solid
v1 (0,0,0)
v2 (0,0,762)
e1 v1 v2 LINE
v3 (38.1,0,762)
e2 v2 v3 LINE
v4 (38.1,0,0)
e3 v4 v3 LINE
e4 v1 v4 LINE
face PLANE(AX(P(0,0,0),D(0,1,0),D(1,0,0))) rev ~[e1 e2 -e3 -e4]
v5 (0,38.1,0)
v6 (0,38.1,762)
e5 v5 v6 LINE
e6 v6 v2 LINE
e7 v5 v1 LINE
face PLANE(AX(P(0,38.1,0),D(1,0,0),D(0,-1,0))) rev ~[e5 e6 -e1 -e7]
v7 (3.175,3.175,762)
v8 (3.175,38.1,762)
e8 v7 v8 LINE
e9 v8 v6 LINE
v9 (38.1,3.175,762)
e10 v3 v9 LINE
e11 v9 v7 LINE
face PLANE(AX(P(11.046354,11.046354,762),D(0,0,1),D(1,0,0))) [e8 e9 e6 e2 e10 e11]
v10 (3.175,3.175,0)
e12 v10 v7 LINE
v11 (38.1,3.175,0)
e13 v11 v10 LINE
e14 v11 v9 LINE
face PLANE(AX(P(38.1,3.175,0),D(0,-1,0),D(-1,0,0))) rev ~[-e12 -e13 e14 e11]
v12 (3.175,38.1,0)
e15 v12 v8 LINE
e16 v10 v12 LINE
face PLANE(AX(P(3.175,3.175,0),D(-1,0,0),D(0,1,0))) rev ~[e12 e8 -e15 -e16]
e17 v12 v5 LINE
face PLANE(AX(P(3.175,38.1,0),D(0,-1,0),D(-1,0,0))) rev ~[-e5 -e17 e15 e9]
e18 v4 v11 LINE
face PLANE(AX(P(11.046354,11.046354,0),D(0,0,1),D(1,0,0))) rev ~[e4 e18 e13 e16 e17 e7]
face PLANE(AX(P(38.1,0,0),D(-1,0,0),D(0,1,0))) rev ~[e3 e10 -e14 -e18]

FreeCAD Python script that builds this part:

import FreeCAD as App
import Part
import Sketcher

V = App.Vector
Q = App.Units.Quantity


def add_polygon(sketch, points):
    """Adds a closed chain of lines whose ends are joined by coincident constraints."""
    first, n = sketch.GeometryCount, len(points)
    for a, b in zip(points, points[1:] + points[:1]):
        sketch.addGeometry(Part.LineSegment(App.Vector(*a, 0), App.Vector(*b, 0)), False)
    for i in range(n):
        sketch.addConstraint(Sketcher.Constraint("Coincident", first + i, 2, first + (i + 1) % n, 1))

doc = App.newDocument("Part")
body = doc.addObject("PartDesign::Body", "Body")

# Sketch on XY plane
sketch1 = body.newObject("Sketcher::SketchObject", "Sketch")
sketch1.AttachmentSupport = (doc.getObject("XY_Plane"), [""])
sketch1.MapMode = "FlatFace"
add_polygon(sketch1, [(0, 0), (38.1, 0), (38.1, 3.175), (3.175, 3.175), (3.175, 38.1), (0, 38.1)])  # lines 0-5
sketch1.addConstraint(Sketcher.Constraint("Horizontal", 0))
sketch1.addConstraint(Sketcher.Constraint("Vertical", 1))
sketch1.addConstraint(Sketcher.Constraint("Horizontal", 2))
sketch1.addConstraint(Sketcher.Constraint("Vertical", 3))
sketch1.addConstraint(Sketcher.Constraint("Horizontal", 4))
sketch1.addConstraint(Sketcher.Constraint("Vertical", 5))
sketch1.addConstraint(Sketcher.Constraint("Coincident", 5, 2, -1, 1))
sketch1.addConstraint(Sketcher.Constraint("Equal", 4, 1))
sketch1.addConstraint(Sketcher.Constraint("Equal", 2, 3))
sketch1.addConstraint(Sketcher.Constraint("DistanceX", 0, 1, 0, 2, Q("1.5 in")))
sketch1.addConstraint(Sketcher.Constraint("DistanceX", 2, 2, 2, 1, Q("1.375 in")))
pad1 = body.newObject("PartDesign::Pad", "Pad")
pad1.Profile = sketch1
pad1.Length = Q("30 in")

doc.recompute()
